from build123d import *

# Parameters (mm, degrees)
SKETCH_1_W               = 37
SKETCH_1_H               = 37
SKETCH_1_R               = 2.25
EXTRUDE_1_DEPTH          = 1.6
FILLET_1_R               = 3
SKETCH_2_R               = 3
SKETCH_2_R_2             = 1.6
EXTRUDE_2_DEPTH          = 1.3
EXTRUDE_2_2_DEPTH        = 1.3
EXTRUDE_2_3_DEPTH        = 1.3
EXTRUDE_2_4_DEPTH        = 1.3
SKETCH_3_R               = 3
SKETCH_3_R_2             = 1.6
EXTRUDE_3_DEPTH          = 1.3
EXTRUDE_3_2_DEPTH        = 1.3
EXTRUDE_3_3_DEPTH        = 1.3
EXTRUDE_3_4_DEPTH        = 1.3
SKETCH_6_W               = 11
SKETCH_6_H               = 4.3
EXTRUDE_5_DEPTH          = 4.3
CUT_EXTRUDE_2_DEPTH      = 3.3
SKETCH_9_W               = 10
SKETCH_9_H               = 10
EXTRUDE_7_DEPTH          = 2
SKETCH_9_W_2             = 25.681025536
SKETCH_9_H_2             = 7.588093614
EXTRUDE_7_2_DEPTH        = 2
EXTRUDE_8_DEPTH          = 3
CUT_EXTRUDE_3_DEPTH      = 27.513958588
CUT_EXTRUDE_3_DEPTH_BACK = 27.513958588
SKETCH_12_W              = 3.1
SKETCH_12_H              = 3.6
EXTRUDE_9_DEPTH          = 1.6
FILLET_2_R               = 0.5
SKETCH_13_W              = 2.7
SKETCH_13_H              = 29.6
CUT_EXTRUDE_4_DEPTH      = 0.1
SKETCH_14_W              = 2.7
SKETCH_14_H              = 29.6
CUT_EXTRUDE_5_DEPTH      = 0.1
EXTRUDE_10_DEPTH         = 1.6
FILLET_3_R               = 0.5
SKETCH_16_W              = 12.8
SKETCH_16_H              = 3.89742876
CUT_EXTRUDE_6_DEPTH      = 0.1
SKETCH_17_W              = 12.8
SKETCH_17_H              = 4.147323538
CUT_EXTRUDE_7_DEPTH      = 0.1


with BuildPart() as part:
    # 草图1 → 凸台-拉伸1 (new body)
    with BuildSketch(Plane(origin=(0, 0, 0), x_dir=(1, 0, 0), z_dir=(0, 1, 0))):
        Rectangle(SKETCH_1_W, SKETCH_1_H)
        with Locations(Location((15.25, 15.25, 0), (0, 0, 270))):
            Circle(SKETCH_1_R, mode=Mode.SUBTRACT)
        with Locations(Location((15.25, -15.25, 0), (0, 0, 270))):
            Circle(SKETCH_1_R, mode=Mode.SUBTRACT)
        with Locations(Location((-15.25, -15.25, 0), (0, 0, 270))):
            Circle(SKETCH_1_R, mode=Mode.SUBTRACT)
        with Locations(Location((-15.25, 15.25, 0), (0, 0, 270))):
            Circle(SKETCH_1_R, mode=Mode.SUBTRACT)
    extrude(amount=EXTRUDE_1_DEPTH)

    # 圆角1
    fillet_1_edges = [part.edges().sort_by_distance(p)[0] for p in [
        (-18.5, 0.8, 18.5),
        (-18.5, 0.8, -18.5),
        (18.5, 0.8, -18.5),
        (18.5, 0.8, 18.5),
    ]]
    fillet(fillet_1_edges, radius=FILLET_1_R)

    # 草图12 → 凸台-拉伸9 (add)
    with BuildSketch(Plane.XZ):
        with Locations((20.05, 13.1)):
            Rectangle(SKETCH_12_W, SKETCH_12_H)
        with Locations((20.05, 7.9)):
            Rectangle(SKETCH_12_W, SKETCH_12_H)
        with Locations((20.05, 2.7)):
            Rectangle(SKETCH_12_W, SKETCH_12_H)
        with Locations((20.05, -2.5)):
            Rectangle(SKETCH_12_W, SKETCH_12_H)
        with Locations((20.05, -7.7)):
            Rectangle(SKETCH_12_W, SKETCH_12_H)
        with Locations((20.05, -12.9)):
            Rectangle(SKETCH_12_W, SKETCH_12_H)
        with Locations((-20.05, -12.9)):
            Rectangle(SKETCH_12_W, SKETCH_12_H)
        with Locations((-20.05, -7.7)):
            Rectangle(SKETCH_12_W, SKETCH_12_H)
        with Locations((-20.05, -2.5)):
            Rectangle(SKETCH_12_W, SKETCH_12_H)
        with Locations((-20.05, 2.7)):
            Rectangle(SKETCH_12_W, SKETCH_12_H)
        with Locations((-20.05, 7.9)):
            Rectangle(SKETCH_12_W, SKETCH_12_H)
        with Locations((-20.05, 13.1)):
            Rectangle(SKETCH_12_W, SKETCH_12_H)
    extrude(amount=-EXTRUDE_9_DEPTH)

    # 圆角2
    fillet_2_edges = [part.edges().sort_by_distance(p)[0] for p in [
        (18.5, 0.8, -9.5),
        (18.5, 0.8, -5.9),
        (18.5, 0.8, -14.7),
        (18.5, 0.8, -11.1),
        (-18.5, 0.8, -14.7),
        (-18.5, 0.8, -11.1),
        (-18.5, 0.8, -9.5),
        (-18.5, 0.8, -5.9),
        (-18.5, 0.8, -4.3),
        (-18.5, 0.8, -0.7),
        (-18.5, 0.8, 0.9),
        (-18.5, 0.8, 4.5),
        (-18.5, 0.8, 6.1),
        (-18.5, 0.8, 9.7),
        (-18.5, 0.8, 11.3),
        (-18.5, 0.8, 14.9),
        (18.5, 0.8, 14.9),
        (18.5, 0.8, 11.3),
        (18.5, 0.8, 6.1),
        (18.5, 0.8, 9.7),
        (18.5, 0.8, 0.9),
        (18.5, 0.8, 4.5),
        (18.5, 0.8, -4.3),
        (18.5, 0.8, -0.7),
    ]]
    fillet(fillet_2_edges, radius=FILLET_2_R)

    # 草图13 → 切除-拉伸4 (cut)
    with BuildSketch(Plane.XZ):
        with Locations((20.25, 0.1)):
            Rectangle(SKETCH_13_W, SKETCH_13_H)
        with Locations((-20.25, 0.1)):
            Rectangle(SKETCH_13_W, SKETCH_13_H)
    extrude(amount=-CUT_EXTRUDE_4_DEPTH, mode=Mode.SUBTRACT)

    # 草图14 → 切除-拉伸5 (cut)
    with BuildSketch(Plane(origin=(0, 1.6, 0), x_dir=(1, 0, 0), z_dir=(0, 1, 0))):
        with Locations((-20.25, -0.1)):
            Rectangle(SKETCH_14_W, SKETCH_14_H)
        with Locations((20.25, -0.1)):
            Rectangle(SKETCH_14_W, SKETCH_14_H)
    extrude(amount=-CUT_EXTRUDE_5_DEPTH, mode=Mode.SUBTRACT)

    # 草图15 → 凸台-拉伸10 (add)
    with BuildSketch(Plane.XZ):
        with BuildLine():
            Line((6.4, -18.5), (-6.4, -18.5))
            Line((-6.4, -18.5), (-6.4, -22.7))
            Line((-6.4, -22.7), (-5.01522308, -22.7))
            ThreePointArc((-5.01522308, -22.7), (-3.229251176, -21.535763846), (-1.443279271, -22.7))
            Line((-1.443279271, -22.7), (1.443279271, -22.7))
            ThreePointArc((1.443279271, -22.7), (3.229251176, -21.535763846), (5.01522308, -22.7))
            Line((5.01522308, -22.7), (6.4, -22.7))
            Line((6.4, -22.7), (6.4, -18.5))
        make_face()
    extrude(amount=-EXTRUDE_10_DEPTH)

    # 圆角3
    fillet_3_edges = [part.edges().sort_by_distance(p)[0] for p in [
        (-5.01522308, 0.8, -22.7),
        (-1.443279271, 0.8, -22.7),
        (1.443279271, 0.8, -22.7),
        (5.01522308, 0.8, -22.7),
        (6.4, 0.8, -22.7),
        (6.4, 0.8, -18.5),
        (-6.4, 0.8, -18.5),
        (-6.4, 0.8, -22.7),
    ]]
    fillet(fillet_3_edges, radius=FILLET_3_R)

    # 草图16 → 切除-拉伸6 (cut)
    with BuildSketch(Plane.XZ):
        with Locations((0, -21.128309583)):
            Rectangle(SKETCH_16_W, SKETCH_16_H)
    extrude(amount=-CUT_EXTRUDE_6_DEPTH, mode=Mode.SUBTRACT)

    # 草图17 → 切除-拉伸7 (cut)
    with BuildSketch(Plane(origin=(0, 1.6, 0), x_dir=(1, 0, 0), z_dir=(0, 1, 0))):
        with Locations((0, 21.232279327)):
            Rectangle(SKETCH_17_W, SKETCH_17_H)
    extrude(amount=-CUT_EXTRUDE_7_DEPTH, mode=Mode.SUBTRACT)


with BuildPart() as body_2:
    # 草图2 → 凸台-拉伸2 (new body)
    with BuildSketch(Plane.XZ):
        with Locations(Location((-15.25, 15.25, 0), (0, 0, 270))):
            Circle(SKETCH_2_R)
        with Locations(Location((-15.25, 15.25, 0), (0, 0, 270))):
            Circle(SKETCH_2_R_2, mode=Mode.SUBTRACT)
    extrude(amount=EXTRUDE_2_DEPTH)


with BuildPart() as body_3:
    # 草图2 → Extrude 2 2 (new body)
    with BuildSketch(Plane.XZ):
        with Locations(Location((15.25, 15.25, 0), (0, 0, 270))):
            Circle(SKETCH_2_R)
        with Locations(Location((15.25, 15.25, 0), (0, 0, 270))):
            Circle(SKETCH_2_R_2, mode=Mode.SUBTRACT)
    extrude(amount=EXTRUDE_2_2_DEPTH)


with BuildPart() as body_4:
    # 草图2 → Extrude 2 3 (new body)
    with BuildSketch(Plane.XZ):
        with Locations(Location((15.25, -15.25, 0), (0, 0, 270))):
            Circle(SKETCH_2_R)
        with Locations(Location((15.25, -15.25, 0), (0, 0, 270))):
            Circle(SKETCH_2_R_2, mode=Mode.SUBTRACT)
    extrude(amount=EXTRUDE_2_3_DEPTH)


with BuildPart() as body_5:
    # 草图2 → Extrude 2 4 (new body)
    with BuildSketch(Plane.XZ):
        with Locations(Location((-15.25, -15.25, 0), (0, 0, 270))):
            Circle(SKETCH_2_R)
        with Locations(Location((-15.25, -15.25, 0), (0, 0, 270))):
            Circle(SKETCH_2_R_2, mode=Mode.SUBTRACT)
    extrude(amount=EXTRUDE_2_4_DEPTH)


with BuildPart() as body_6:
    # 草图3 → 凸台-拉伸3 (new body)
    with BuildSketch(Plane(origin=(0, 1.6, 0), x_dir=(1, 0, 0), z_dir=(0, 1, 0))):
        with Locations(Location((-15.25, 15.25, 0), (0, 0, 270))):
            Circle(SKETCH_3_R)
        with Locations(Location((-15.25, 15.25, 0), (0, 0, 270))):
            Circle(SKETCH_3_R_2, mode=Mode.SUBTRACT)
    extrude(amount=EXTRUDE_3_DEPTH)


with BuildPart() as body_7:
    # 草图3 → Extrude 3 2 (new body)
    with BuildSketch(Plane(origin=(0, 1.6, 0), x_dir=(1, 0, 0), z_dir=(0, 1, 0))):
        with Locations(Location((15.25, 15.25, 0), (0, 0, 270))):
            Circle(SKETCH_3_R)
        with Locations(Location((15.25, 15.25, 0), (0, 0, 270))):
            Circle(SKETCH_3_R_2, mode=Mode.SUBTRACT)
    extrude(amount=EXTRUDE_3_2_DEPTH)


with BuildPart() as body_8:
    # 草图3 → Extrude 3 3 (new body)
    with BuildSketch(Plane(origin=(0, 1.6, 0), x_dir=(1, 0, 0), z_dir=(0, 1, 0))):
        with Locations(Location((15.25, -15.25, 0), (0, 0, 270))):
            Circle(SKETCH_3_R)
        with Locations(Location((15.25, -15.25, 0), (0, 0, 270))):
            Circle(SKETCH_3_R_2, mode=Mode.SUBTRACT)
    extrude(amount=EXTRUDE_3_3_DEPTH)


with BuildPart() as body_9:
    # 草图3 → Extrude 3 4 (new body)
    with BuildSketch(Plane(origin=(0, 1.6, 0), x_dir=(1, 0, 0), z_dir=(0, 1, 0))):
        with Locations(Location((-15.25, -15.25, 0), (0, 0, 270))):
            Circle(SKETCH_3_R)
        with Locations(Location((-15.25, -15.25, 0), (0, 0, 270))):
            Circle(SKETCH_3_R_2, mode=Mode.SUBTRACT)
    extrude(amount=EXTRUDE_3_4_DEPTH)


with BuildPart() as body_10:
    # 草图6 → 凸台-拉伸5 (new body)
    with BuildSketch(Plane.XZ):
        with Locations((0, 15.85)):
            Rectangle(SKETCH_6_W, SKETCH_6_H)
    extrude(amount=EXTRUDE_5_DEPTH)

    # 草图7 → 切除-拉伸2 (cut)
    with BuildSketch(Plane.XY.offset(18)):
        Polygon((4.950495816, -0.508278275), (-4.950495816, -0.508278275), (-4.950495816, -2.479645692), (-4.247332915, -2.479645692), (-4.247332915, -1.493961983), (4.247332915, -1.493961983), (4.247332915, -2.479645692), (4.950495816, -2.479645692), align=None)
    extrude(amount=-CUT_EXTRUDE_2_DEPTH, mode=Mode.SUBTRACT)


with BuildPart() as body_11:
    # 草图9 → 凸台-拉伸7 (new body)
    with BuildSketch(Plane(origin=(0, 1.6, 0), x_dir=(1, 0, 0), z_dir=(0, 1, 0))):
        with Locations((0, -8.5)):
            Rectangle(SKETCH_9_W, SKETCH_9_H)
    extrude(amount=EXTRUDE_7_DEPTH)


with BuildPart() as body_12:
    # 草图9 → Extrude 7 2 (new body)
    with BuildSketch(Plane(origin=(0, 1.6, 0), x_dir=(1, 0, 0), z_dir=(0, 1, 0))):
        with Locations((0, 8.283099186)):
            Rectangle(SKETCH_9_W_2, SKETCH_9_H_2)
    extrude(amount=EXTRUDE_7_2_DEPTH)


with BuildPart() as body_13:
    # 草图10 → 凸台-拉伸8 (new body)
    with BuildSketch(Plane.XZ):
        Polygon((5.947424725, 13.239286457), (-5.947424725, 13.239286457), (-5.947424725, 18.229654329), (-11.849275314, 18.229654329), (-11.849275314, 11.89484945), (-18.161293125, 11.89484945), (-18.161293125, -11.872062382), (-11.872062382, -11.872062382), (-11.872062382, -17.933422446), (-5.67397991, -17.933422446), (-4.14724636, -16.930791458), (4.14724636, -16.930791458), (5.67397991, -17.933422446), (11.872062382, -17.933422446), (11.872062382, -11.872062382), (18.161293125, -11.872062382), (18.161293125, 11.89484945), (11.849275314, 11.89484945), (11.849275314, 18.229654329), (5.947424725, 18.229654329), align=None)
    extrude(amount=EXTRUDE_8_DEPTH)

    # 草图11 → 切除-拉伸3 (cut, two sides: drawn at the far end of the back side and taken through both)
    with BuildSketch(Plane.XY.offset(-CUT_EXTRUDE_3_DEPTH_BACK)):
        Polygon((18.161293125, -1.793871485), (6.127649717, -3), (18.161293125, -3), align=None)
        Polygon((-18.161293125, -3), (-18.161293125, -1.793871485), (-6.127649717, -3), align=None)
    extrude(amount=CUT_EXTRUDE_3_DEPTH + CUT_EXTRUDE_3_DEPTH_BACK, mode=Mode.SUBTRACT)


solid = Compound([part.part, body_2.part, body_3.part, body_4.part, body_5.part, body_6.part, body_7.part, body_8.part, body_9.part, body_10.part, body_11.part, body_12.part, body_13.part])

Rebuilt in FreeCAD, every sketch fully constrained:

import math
import FreeCAD as App
import Part
import Sketcher

V = App.Vector
Q = App.Units.Quantity


def edges_at(feature, points):
    """Names of the edges that pass closest to the given points."""
    edges = feature.Shape.Edges
    near = lambda p: min(range(len(edges)), key=lambda i: edges[i].distToShape(Part.Vertex(*p))[0])
    return sorted({f"Edge{near(p) + 1}" for p in points})


def add_polygon(sketch, points):
    """Adds a closed chain of lines whose ends are joined by coincident constraints."""
    first, n = sketch.GeometryCount, len(points)
    for a, b in zip(points, points[1:] + points[:1]):
        sketch.addGeometry(Part.LineSegment(App.Vector(*a, 0), App.Vector(*b, 0)), False)
    for i in range(n):
        sketch.addConstraint(Sketcher.Constraint("Coincident", first + i, 2, first + (i + 1) % n, 1))

doc = App.newDocument("Part")
body = doc.addObject("PartDesign::Body", "Body")

# Sketch on XZ plane
sketch1 = doc.addObject("Sketcher::SketchObject", "Sketch")
body.addObject(sketch1)
sketch1.AttachmentSupport = (doc.XZ_Plane, [""])
sketch1.MapMode = "FlatFace"
add_polygon(sketch1, [(-18.5, -18.5), (-18.5, 18.5), (18.5, 18.5), (18.5, -18.5)])  # lines 0-3
sketch1.addGeometry(Part.Circle(V(-15.25, 15.25, 0), V(0, 0, 1), 2.25), False)  # 4
sketch1.addGeometry(Part.Circle(V(15.25, 15.25, 0), V(0, 0, 1), 2.25), False)  # 5
sketch1.addGeometry(Part.Circle(V(-15.25, -15.25, 0), V(0, 0, 1), 2.25), False)  # 6
sketch1.addGeometry(Part.Circle(V(15.25, -15.25, 0), V(0, 0, 1), 2.25), False)  # 7
sketch1.addConstraint(Sketcher.Constraint("Vertical", 0))
sketch1.addConstraint(Sketcher.Constraint("Horizontal", 1))
sketch1.addConstraint(Sketcher.Constraint("Vertical", 2))
sketch1.addConstraint(Sketcher.Constraint("Horizontal", 3))
sketch1.addConstraint(Sketcher.Constraint("Equal", 4, 5))
sketch1.addConstraint(Sketcher.Constraint("Equal", 5, 6))
sketch1.addConstraint(Sketcher.Constraint("Equal", 6, 7))
sketch1.addConstraint(Sketcher.Constraint("Symmetric", 5, 3, 6, 3, -1, 1))
sketch1.addConstraint(Sketcher.Constraint("Symmetric", 4, 3, 7, 3, -1, 1))
sketch1.addConstraint(Sketcher.Constraint("Symmetric", 0, 2, 2, 2, -1, 1))
sketch1.addConstraint(Sketcher.Constraint("Symmetric", 4, 3, 5, 3, -2))
sketch1.addConstraint(Sketcher.Constraint("Equal", 3, 0))
sketch1.addConstraint(Sketcher.Constraint("Diameter", 4, Q("4.5 mm")))
sketch1.addConstraint(Sketcher.Constraint("DistanceX", 1, 1, 1, 2, Q("37 mm")))
sketch1.addConstraint(Sketcher.Constraint("DistanceX", 4, 3, 5, 3, Q("30.5 mm")))
sketch1.addConstraint(Sketcher.Constraint("DistanceY", 6, 3, 4, 3, Q("30.5 mm")))
pad1 = doc.addObject("PartDesign::Pad", "Pad")
body.addObject(pad1)
pad1.Profile = sketch1
pad1.Length = 1.6
pad1.Reversed = True
doc.recompute()

fillet = doc.addObject("PartDesign::Fillet", "Fillet")
body.addObject(fillet)
fillet.Base = (pad1, edges_at(pad1, [
    (-18.5, 0.8, 18.5),
    (-18.5, 0.8, -18.5),
    (18.5, 0.8, -18.5),
    (18.5, 0.8, 18.5),
]))
fillet.Radius = 3

# Sketch on XZ plane
sketch2 = doc.addObject("Sketcher::SketchObject", "Sketch001")
body.addObject(sketch2)
sketch2.AttachmentSupport = (doc.XZ_Plane, [""])
sketch2.MapMode = "FlatFace"
add_polygon(sketch2, [(18.5, 14.9), (18.5, 11.3), (21.6, 11.3), (21.6, 14.9)])  # lines 0-3
add_polygon(sketch2, [(18.5, 9.7), (18.5, 6.1), (21.6, 6.1), (21.6, 9.7)])  # lines 4-7
add_polygon(sketch2, [(18.5, 4.5), (18.5, 0.9), (21.6, 0.9), (21.6, 4.5)])  # lines 8-11
add_polygon(sketch2, [(18.5, -0.7), (18.5, -4.3), (21.6, -4.3), (21.6, -0.7)])  # lines 12-15
add_polygon(sketch2, [(18.5, -5.9), (18.5, -9.5), (21.6, -9.5), (21.6, -5.9)])  # lines 16-19
add_polygon(sketch2, [(18.5, -11.1), (18.5, -14.7), (21.6, -14.7), (21.6, -11.1)])  # lines 20-23
add_polygon(sketch2, [(-21.6, -11.1), (-21.6, -14.7), (-18.5, -14.7), (-18.5, -11.1)])  # lines 24-27
add_polygon(sketch2, [(-21.6, -5.9), (-21.6, -9.5), (-18.5, -9.5), (-18.5, -5.9)])  # lines 28-31
add_polygon(sketch2, [(-21.6, -0.7), (-21.6, -4.3), (-18.5, -4.3), (-18.5, -0.7)])  # lines 32-35
add_polygon(sketch2, [(-21.6, 4.5), (-21.6, 0.9), (-18.5, 0.9), (-18.5, 4.5)])  # lines 36-39
add_polygon(sketch2, [(-21.6, 9.7), (-21.6, 6.1), (-18.5, 6.1), (-18.5, 9.7)])  # lines 40-43
add_polygon(sketch2, [(-21.6, 14.9), (-21.6, 11.3), (-18.5, 11.3), (-18.5, 14.9)])  # lines 44-47
sketch2.addConstraint(Sketcher.Constraint("Vertical", 0))
sketch2.addConstraint(Sketcher.Constraint("Horizontal", 1))
sketch2.addConstraint(Sketcher.Constraint("Vertical", 2))
sketch2.addConstraint(Sketcher.Constraint("Horizontal", 3))
sketch2.addConstraint(Sketcher.Constraint("Vertical", 4))
sketch2.addConstraint(Sketcher.Constraint("Horizontal", 5))
sketch2.addConstraint(Sketcher.Constraint("Vertical", 6))
sketch2.addConstraint(Sketcher.Constraint("Horizontal", 7))
sketch2.addConstraint(Sketcher.Constraint("Vertical", 8))
sketch2.addConstraint(Sketcher.Constraint("Horizontal", 9))
sketch2.addConstraint(Sketcher.Constraint("Vertical", 10))
sketch2.addConstraint(Sketcher.Constraint("Horizontal", 11))
sketch2.addConstraint(Sketcher.Constraint("Vertical", 12))
sketch2.addConstraint(Sketcher.Constraint("Horizontal", 13))
sketch2.addConstraint(Sketcher.Constraint("Vertical", 14))
sketch2.addConstraint(Sketcher.Constraint("Horizontal", 15))
sketch2.addConstraint(Sketcher.Constraint("Vertical", 16))
sketch2.addConstraint(Sketcher.Constraint("Horizontal", 17))
sketch2.addConstraint(Sketcher.Constraint("Vertical", 18))
sketch2.addConstraint(Sketcher.Constraint("Horizontal", 19))
sketch2.addConstraint(Sketcher.Constraint("Vertical", 20))
sketch2.addConstraint(Sketcher.Constraint("Horizontal", 21))
sketch2.addConstraint(Sketcher.Constraint("Vertical", 22))
sketch2.addConstraint(Sketcher.Constraint("Horizontal", 23))
sketch2.addConstraint(Sketcher.Constraint("Vertical", 24))
sketch2.addConstraint(Sketcher.Constraint("Horizontal", 25))
sketch2.addConstraint(Sketcher.Constraint("Vertical", 26))
sketch2.addConstraint(Sketcher.Constraint("Horizontal", 27))
sketch2.addConstraint(Sketcher.Constraint("Vertical", 28))
sketch2.addConstraint(Sketcher.Constraint("Horizontal", 29))
sketch2.addConstraint(Sketcher.Constraint("Vertical", 30))
sketch2.addConstraint(Sketcher.Constraint("Horizontal", 31))
sketch2.addConstraint(Sketcher.Constraint("Vertical", 32))
sketch2.addConstraint(Sketcher.Constraint("Horizontal", 33))
sketch2.addConstraint(Sketcher.Constraint("Vertical", 34))
sketch2.addConstraint(Sketcher.Constraint("Horizontal", 35))
sketch2.addConstraint(Sketcher.Constraint("Vertical", 36))
sketch2.addConstraint(Sketcher.Constraint("Horizontal", 37))
sketch2.addConstraint(Sketcher.Constraint("Vertical", 38))
sketch2.addConstraint(Sketcher.Constraint("Horizontal", 39))
sketch2.addConstraint(Sketcher.Constraint("Vertical", 40))
sketch2.addConstraint(Sketcher.Constraint("Horizontal", 41))
sketch2.addConstraint(Sketcher.Constraint("Vertical", 42))
sketch2.addConstraint(Sketcher.Constraint("Horizontal", 43))
sketch2.addConstraint(Sketcher.Constraint("Vertical", 44))
sketch2.addConstraint(Sketcher.Constraint("Horizontal", 45))
sketch2.addConstraint(Sketcher.Constraint("Vertical", 46))
sketch2.addConstraint(Sketcher.Constraint("Horizontal", 47))
sketch2.addConstraint(Sketcher.Constraint("Symmetric", 21, 2, 24, 2, -2))
sketch2.addConstraint(Sketcher.Constraint("Symmetric", 23, 2, 26, 2, -2))
sketch2.addConstraint(Sketcher.Constraint("Symmetric", 17, 2, 28, 2, -2))
sketch2.addConstraint(Sketcher.Constraint("Symmetric", 19, 2, 30, 2, -2))
sketch2.addConstraint(Sketcher.Constraint("Symmetric", 13, 2, 32, 2, -2))
sketch2.addConstraint(Sketcher.Constraint("Symmetric", 15, 2, 34, 2, -2))
sketch2.addConstraint(Sketcher.Constraint("Symmetric", 9, 2, 36, 2, -2))
sketch2.addConstraint(Sketcher.Constraint("Symmetric", 11, 2, 38, 2, -2))
sketch2.addConstraint(Sketcher.Constraint("Symmetric", 5, 2, 40, 2, -2))
sketch2.addConstraint(Sketcher.Constraint("Symmetric", 7, 2, 42, 2, -2))
sketch2.addConstraint(Sketcher.Constraint("Symmetric", 1, 2, 44, 2, -2))
sketch2.addConstraint(Sketcher.Constraint("Symmetric", 3, 2, 46, 2, -2))
sketch2.addConstraint(Sketcher.Constraint("Vertical", 3, 2, 4, 2))
sketch2.addConstraint(Sketcher.Constraint("Vertical", 2, 2, 5, 2))
sketch2.addConstraint(Sketcher.Constraint("Vertical", 7, 2, 8, 2))
sketch2.addConstraint(Sketcher.Constraint("Vertical", 6, 2, 9, 2))
sketch2.addConstraint(Sketcher.Constraint("Vertical", 11, 2, 12, 2))
sketch2.addConstraint(Sketcher.Constraint("Vertical", 10, 2, 13, 2))
sketch2.addConstraint(Sketcher.Constraint("Vertical", 15, 2, 16, 2))
sketch2.addConstraint(Sketcher.Constraint("Vertical", 14, 2, 17, 2))
sketch2.addConstraint(Sketcher.Constraint("Vertical", 19, 2, 20, 2))
sketch2.addConstraint(Sketcher.Constraint("Vertical", 18, 2, 21, 2))
sketch2.addConstraint(Sketcher.Constraint("Equal", 2, 4))
sketch2.addConstraint(Sketcher.Constraint("Equal", 6, 8))
sketch2.addConstraint(Sketcher.Constraint("Equal", 10, 12))
sketch2.addConstraint(Sketcher.Constraint("Equal", 14, 16))
sketch2.addConstraint(Sketcher.Constraint("Equal", 18, 20))
sketch2.addConstraint(Sketcher.Constraint("DistanceX", 1, 1, 1, 2, Q("3.1 mm")))
sketch2.addConstraint(Sketcher.Constraint("DistanceY", 0, 2, 0, 1, Q("3.6 mm")))
sketch2.addConstraint(Sketcher.Constraint("DistanceX", 25, 2, 20, 2, Q("37 mm")))
sketch2.addConstraint(Sketcher.Constraint("DistanceY", -1, 1, 0, 2, Q("11.3 mm")))
sketch2.addConstraint(Sketcher.Constraint("DistanceY", -1, 1, 4, 2, Q("6.1 mm")))
sketch2.addConstraint(Sketcher.Constraint("DistanceY", -1, 1, 8, 2, Q("0.9 mm")))
sketch2.addConstraint(Sketcher.Constraint("DistanceY", 12, 2, -1, 1, Q("4.3 mm")))
sketch2.addConstraint(Sketcher.Constraint("DistanceY", 16, 2, -1, 1, Q("9.5 mm")))
sketch2.addConstraint(Sketcher.Constraint("DistanceY", 20, 2, -1, 1, Q("14.7 mm")))
pad2 = doc.addObject("PartDesign::Pad", "Pad001")
body.addObject(pad2)
pad2.Profile = sketch2
pad2.Length = 1.6
pad2.Reversed = True
doc.recompute()

fillet2 = doc.addObject("PartDesign::Fillet", "Fillet001")
body.addObject(fillet2)
fillet2.Base = (pad2, edges_at(pad2, [
    (18.5, 0.8, -9.5),
    (18.5, 0.8, -5.9),
    (18.5, 0.8, -14.7),
    (18.5, 0.8, -11.1),
    (-18.5, 0.8, -14.7),
    (-18.5, 0.8, -11.1),
    (-18.5, 0.8, -9.5),
    (-18.5, 0.8, -5.9),
    (-18.5, 0.8, -4.3),
    (-18.5, 0.8, -0.7),
    (-18.5, 0.8, 0.9),
    (-18.5, 0.8, 4.5),
    (-18.5, 0.8, 6.1),
    (-18.5, 0.8, 9.7),
    (-18.5, 0.8, 11.3),
    (-18.5, 0.8, 14.9),
    (18.5, 0.8, 14.9),
    (18.5, 0.8, 11.3),
    (18.5, 0.8, 6.1),
    (18.5, 0.8, 9.7),
    (18.5, 0.8, 0.9),
    (18.5, 0.8, 4.5),
    (18.5, 0.8, -4.3),
    (18.5, 0.8, -0.7),
]))
fillet2.Radius = 0.5

# Sketch on XZ plane
sketch3 = doc.addObject("Sketcher::SketchObject", "Sketch002")
body.addObject(sketch3)
sketch3.AttachmentSupport = (doc.XZ_Plane, [""])
sketch3.MapMode = "FlatFace"
add_polygon(sketch3, [(18.9, 14.9), (18.9, -14.7), (21.6, -14.7), (21.6, 14.9)])  # lines 0-3
add_polygon(sketch3, [(-21.6, 14.9), (-21.6, -14.7), (-18.9, -14.7), (-18.9, 14.9)])  # lines 4-7
sketch3.addConstraint(Sketcher.Constraint("Vertical", 0))
sketch3.addConstraint(Sketcher.Constraint("Horizontal", 1))
sketch3.addConstraint(Sketcher.Constraint("Vertical", 2))
sketch3.addConstraint(Sketcher.Constraint("Horizontal", 3))
sketch3.addConstraint(Sketcher.Constraint("Vertical", 4))
sketch3.addConstraint(Sketcher.Constraint("Horizontal", 5))
sketch3.addConstraint(Sketcher.Constraint("Vertical", 6))
sketch3.addConstraint(Sketcher.Constraint("Horizontal", 7))
sketch3.addConstraint(Sketcher.Constraint("Symmetric", 1, 2, 4, 2, -2))
sketch3.addConstraint(Sketcher.Constraint("Symmetric", 3, 2, 6, 2, -2))
sketch3.addConstraint(Sketcher.Constraint("DistanceX", 1, 1, 1, 2, Q("2.7 mm")))
sketch3.addConstraint(Sketcher.Constraint("DistanceY", 0, 2, 0, 1, Q("29.6 mm")))
sketch3.addConstraint(Sketcher.Constraint("DistanceX", -1, 1, 0, 2, Q("18.9 mm")))
sketch3.addConstraint(Sketcher.Constraint("DistanceY", 0, 2, -1, 1, Q("14.7 mm")))
pocket1 = doc.addObject("PartDesign::Pocket", "Pocket")
body.addObject(pocket1)
pocket1.Profile = sketch3
pocket1.Length = 0.1

# Sketch on XZ plane
sketch4 = doc.addObject("Sketcher::SketchObject", "Sketch003")
body.addObject(sketch4)
sketch4.AttachmentSupport = (doc.XZ_Plane, [""])
sketch4.MapMode = "FlatFace"
sketch4.AttachmentOffset = App.Placement(V(0, 0, -1.6), App.Rotation())
add_polygon(sketch4, [(-21.6, -14.7), (-21.6, 14.9), (-18.9, 14.9), (-18.9, -14.7)])  # lines 0-3
add_polygon(sketch4, [(18.9, -14.7), (18.9, 14.9), (21.6, 14.9), (21.6, -14.7)])  # lines 4-7
sketch4.addConstraint(Sketcher.Constraint("Vertical", 0))
sketch4.addConstraint(Sketcher.Constraint("Horizontal", 1))
sketch4.addConstraint(Sketcher.Constraint("Vertical", 2))
sketch4.addConstraint(Sketcher.Constraint("Horizontal", 3))
sketch4.addConstraint(Sketcher.Constraint("Vertical", 4))
sketch4.addConstraint(Sketcher.Constraint("Horizontal", 5))
sketch4.addConstraint(Sketcher.Constraint("Vertical", 6))
sketch4.addConstraint(Sketcher.Constraint("Horizontal", 7))
sketch4.addConstraint(Sketcher.Constraint("Symmetric", 1, 2, 4, 2, -2))
sketch4.addConstraint(Sketcher.Constraint("Symmetric", 3, 2, 6, 2, -2))
sketch4.addConstraint(Sketcher.Constraint("DistanceX", 1, 1, 1, 2, Q("2.7 mm")))
sketch4.addConstraint(Sketcher.Constraint("DistanceY", 0, 1, 0, 2, Q("29.6 mm")))
sketch4.addConstraint(Sketcher.Constraint("DistanceX", 0, 2, -1, 1, Q("21.6 mm")))
sketch4.addConstraint(Sketcher.Constraint("DistanceY", -1, 1, 0, 2, Q("14.9 mm")))
pocket2 = doc.addObject("PartDesign::Pocket", "Pocket001")
body.addObject(pocket2)
pocket2.Profile = sketch4
pocket2.Length = 0.1
pocket2.Reversed = True

# Sketch on XZ plane
sketch5 = doc.addObject("Sketcher::SketchObject", "Sketch004")
body.addObject(sketch5)
sketch5.AttachmentSupport = (doc.XZ_Plane, [""])
sketch5.MapMode = "FlatFace"
sketch5.addGeometry(Part.LineSegment(V(6.4, -18.5, 0), V(-6.4, -18.5, 0)), False)
sketch5.addGeometry(Part.LineSegment(V(-6.4, -18.5, 0), V(-6.4, -22.7, 0)), False)
sketch5.addGeometry(Part.LineSegment(V(-6.4, -22.7, 0), V(-5.015223, -22.7, 0)), False)
sketch5.addGeometry(Part.ArcOfCircle(Part.Circle(V(-3.229251, -23.487748, 0), V(0, 0, 1), 1.951984), math.radians(23.801093), math.radians(156.198907)), False)
sketch5.addGeometry(Part.LineSegment(V(-1.443279, -22.7, 0), V(1.443279, -22.7, 0)), False)
sketch5.addGeometry(Part.ArcOfCircle(Part.Circle(V(3.229251, -23.487748, 0), V(0, 0, 1), 1.951984), math.radians(23.801093), math.radians(156.198907)), False)
sketch5.addGeometry(Part.LineSegment(V(5.015223, -22.7, 0), V(6.4, -22.7, 0)), False)
sketch5.addGeometry(Part.LineSegment(V(6.4, -22.7, 0), V(6.4, -18.5, 0)), False)
sketch5.addConstraint(Sketcher.Constraint("Coincident", 0, 2, 1, 1))
sketch5.addConstraint(Sketcher.Constraint("Coincident", 1, 2, 2, 1))
sketch5.addConstraint(Sketcher.Constraint("Coincident", 2, 2, 3, 2))
sketch5.addConstraint(Sketcher.Constraint("Coincident", 3, 1, 4, 1))
sketch5.addConstraint(Sketcher.Constraint("Coincident", 4, 2, 5, 2))
sketch5.addConstraint(Sketcher.Constraint("Coincident", 5, 1, 6, 1))
sketch5.addConstraint(Sketcher.Constraint("Coincident", 6, 2, 7, 1))
sketch5.addConstraint(Sketcher.Constraint("Coincident", 7, 2, 0, 1))
sketch5.addConstraint(Sketcher.Constraint("Horizontal", 0))
sketch5.addConstraint(Sketcher.Constraint("Vertical", 1))
sketch5.addConstraint(Sketcher.Constraint("Horizontal", 2))
sketch5.addConstraint(Sketcher.Constraint("Horizontal", 4))
sketch5.addConstraint(Sketcher.Constraint("Horizontal", 6))
sketch5.addConstraint(Sketcher.Constraint("Vertical", 7))
sketch5.addConstraint(Sketcher.Constraint("Equal", 3, 5))
sketch5.addConstraint(Sketcher.Constraint("Symmetric", 3, 3, 5, 3, -2))
sketch5.addConstraint(Sketcher.Constraint("Symmetric", 1, 2, 6, 2, -2))
sketch5.addConstraint(Sketcher.Constraint("Horizontal", 2, 2, 3, 1))
sketch5.addConstraint(Sketcher.Constraint("DistanceX", 0, 2, 0, 1, Q("12.8 mm")))
sketch5.addConstraint(Sketcher.Constraint("DistanceY", 1, 2, 1, 1, Q("4.2 mm")))
sketch5.addConstraint(Sketcher.Constraint("DistanceY", 0, 2, -1, 1, Q("18.5 mm")))
sketch5.addConstraint(Sketcher.Constraint("Radius", 3, Q("1.951984 mm")))
sketch5.addConstraint(Sketcher.Constraint("DistanceX", 4, 1, 4, 2, Q("2.886559 mm")))
sketch5.addConstraint(Sketcher.Constraint("DistanceX", 2, 1, 2, 2, Q("1.384777 mm")))
pad3 = doc.addObject("PartDesign::Pad", "Pad002")
body.addObject(pad3)
pad3.Profile = sketch5
pad3.Length = 1.6
pad3.Reversed = True
doc.recompute()

fillet3 = doc.addObject("PartDesign::Fillet", "Fillet002")
body.addObject(fillet3)
fillet3.Base = (pad3, edges_at(pad3, [
    (-5.015, 0.8, -22.7),
    (-1.443, 0.8, -22.7),
    (1.443, 0.8, -22.7),
    (5.015, 0.8, -22.7),
    (6.4, 0.8, -22.7),
    (6.4, 0.8, -18.5),
    (-6.4, 0.8, -18.5),
    (-6.4, 0.8, -22.7),
]))
fillet3.Radius = 0.5

# Sketch on XZ plane
sketch6 = doc.addObject("Sketcher::SketchObject", "Sketch005")
body.addObject(sketch6)
sketch6.AttachmentSupport = (doc.XZ_Plane, [""])
sketch6.MapMode = "FlatFace"
add_polygon(sketch6, [(-6.4, -19.179595), (-6.4, -23.077024), (6.4, -23.077024), (6.4, -19.179595)])  # lines 0-3
sketch6.addConstraint(Sketcher.Constraint("Vertical", 0))
sketch6.addConstraint(Sketcher.Constraint("Horizontal", 1))
sketch6.addConstraint(Sketcher.Constraint("Vertical", 2))
sketch6.addConstraint(Sketcher.Constraint("Horizontal", 3))
sketch6.addConstraint(Sketcher.Constraint("DistanceX", 1, 1, 1, 2, Q("12.8 mm")))
sketch6.addConstraint(Sketcher.Constraint("DistanceX", 0, 2, -1, 1, Q("6.4 mm")))
sketch6.addConstraint(Sketcher.Constraint("DistanceY", 0, 2, 0, 1, Q("3.897429 mm")))
sketch6.addConstraint(Sketcher.Constraint("DistanceY", 0, 2, -1, 1, Q("23.077024 mm")))
pocket3 = doc.addObject("PartDesign::Pocket", "Pocket002")
body.addObject(pocket3)
pocket3.Profile = sketch6
pocket3.Length = 0.1

# Sketch on XZ plane
sketch7 = doc.addObject("Sketcher::SketchObject", "Sketch006")
body.addObject(sketch7)
sketch7.AttachmentSupport = (doc.XZ_Plane, [""])
sketch7.MapMode = "FlatFace"
sketch7.AttachmentOffset = App.Placement(V(0, 0, -1.6), App.Rotation())
add_polygon(sketch7, [(-6.4, -23.305941), (-6.4, -19.158618), (6.4, -19.158618), (6.4, -23.305941)])  # lines 0-3
sketch7.addConstraint(Sketcher.Constraint("Vertical", 0))
sketch7.addConstraint(Sketcher.Constraint("Horizontal", 1))
sketch7.addConstraint(Sketcher.Constraint("Vertical", 2))
sketch7.addConstraint(Sketcher.Constraint("Horizontal", 3))
sketch7.addConstraint(Sketcher.Constraint("DistanceX", 1, 1, 1, 2, Q("12.8 mm")))
sketch7.addConstraint(Sketcher.Constraint("DistanceX", 0, 2, -1, 1, Q("6.4 mm")))
sketch7.addConstraint(Sketcher.Constraint("DistanceY", 0, 1, 0, 2, Q("4.147324 mm")))
sketch7.addConstraint(Sketcher.Constraint("DistanceY", 2, 2, -1, 1, Q("23.305941 mm")))
pocket4 = doc.addObject("PartDesign::Pocket", "Pocket003")
body.addObject(pocket4)
pocket4.Profile = sketch7
pocket4.Length = 0.1
pocket4.Reversed = True
body2 = doc.addObject("PartDesign::Body", "Body001")

# Sketch on XZ plane
sketch8 = doc.addObject("Sketcher::SketchObject", "Sketch007")
body2.addObject(sketch8)
sketch8.AttachmentSupport = (doc.getObject("XZ_Plane001"), [""])
sketch8.MapMode = "FlatFace"
sketch8.addGeometry(Part.Circle(V(-15.25, 15.25, 0), V(0, 0, 1), 3), False)
sketch8.addGeometry(Part.Circle(V(-15.25, 15.25, 0), V(0, 0, 1), 1.6), False)
sketch8.addConstraint(Sketcher.Constraint("Coincident", 1, 3, 0, 3))
sketch8.addConstraint(Sketcher.Constraint("Diameter", 0, Q("6 mm")))
sketch8.addConstraint(Sketcher.Constraint("Diameter", 1, Q("3.2 mm")))
sketch8.addConstraint(Sketcher.Constraint("DistanceX", 0, 3, -1, 1, Q("15.25 mm")))
sketch8.addConstraint(Sketcher.Constraint("DistanceY", -1, 1, 0, 3, Q("15.25 mm")))
pad4 = doc.addObject("PartDesign::Pad", "Pad003")
body2.addObject(pad4)
pad4.Profile = sketch8
pad4.Length = 1.3
body3 = doc.addObject("PartDesign::Body", "Body002")

# Sketch on XZ plane
sketch9 = doc.addObject("Sketcher::SketchObject", "Sketch008")
body3.addObject(sketch9)
sketch9.AttachmentSupport = (doc.getObject("XZ_Plane002"), [""])
sketch9.MapMode = "FlatFace"
sketch9.addGeometry(Part.Circle(V(15.25, 15.25, 0), V(0, 0, 1), 3), False)
sketch9.addGeometry(Part.Circle(V(15.25, 15.25, 0), V(0, 0, 1), 1.6), False)
sketch9.addConstraint(Sketcher.Constraint("Coincident", 1, 3, 0, 3))
sketch9.addConstraint(Sketcher.Constraint("Diameter", 0, Q("6 mm")))
sketch9.addConstraint(Sketcher.Constraint("Diameter", 1, Q("3.2 mm")))
sketch9.addConstraint(Sketcher.Constraint("DistanceX", -1, 1, 0, 3, Q("15.25 mm")))
sketch9.addConstraint(Sketcher.Constraint("DistanceY", -1, 1, 0, 3, Q("15.25 mm")))
pad5 = doc.addObject("PartDesign::Pad", "Pad004")
body3.addObject(pad5)
pad5.Profile = sketch9
pad5.Length = 1.3
body4 = doc.addObject("PartDesign::Body", "Body003")

# Sketch on XZ plane
sketch10 = doc.addObject("Sketcher::SketchObject", "Sketch009")
body4.addObject(sketch10)
sketch10.AttachmentSupport = (doc.getObject("XZ_Plane003"), [""])
sketch10.MapMode = "FlatFace"
sketch10.addGeometry(Part.Circle(V(15.25, -15.25, 0), V(0, 0, 1), 3), False)
sketch10.addGeometry(Part.Circle(V(15.25, -15.25, 0), V(0, 0, 1), 1.6), False)
sketch10.addConstraint(Sketcher.Constraint("Coincident", 1, 3, 0, 3))
sketch10.addConstraint(Sketcher.Constraint("Diameter", 0, Q("6 mm")))
sketch10.addConstraint(Sketcher.Constraint("Diameter", 1, Q("3.2 mm")))
sketch10.addConstraint(Sketcher.Constraint("DistanceX", -1, 1, 0, 3, Q("15.25 mm")))
sketch10.addConstraint(Sketcher.Constraint("DistanceY", 0, 3, -1, 1, Q("15.25 mm")))
pad6 = doc.addObject("PartDesign::Pad", "Pad005")
body4.addObject(pad6)
pad6.Profile = sketch10
pad6.Length = 1.3
body5 = doc.addObject("PartDesign::Body", "Body004")

# Sketch on XZ plane
sketch11 = doc.addObject("Sketcher::SketchObject", "Sketch010")
body5.addObject(sketch11)
sketch11.AttachmentSupport = (doc.getObject("XZ_Plane004"), [""])
sketch11.MapMode = "FlatFace"
sketch11.addGeometry(Part.Circle(V(-15.25, -15.25, 0), V(0, 0, 1), 3), False)
sketch11.addGeometry(Part.Circle(V(-15.25, -15.25, 0), V(0, 0, 1), 1.6), False)
sketch11.addConstraint(Sketcher.Constraint("Coincident", 1, 3, 0, 3))
sketch11.addConstraint(Sketcher.Constraint("Diameter", 0, Q("6 mm")))
sketch11.addConstraint(Sketcher.Constraint("Diameter", 1, Q("3.2 mm")))
sketch11.addConstraint(Sketcher.Constraint("DistanceX", 0, 3, -1, 1, Q("15.25 mm")))
sketch11.addConstraint(Sketcher.Constraint("DistanceY", 0, 3, -1, 1, Q("15.25 mm")))
pad7 = doc.addObject("PartDesign::Pad", "Pad006")
body5.addObject(pad7)
pad7.Profile = sketch11
pad7.Length = 1.3
body6 = doc.addObject("PartDesign::Body", "Body005")

# Sketch on XZ plane
sketch12 = doc.addObject("Sketcher::SketchObject", "Sketch011")
body6.addObject(sketch12)
sketch12.AttachmentSupport = (doc.getObject("XZ_Plane005"), [""])
sketch12.MapMode = "FlatFace"
sketch12.AttachmentOffset = App.Placement(V(0, 0, -1.6), App.Rotation())
sketch12.addGeometry(Part.Circle(V(-15.25, -15.25, 0), V(0, 0, 1), 3), False)
sketch12.addGeometry(Part.Circle(V(-15.25, -15.25, 0), V(0, 0, 1), 1.6), False)
sketch12.addConstraint(Sketcher.Constraint("Coincident", 1, 3, 0, 3))
sketch12.addConstraint(Sketcher.Constraint("Diameter", 0, Q("6 mm")))
sketch12.addConstraint(Sketcher.Constraint("Diameter", 1, Q("3.2 mm")))
sketch12.addConstraint(Sketcher.Constraint("DistanceX", 0, 3, -1, 1, Q("15.25 mm")))
sketch12.addConstraint(Sketcher.Constraint("DistanceY", 0, 3, -1, 1, Q("15.25 mm")))
pad8 = doc.addObject("PartDesign::Pad", "Pad007")
body6.addObject(pad8)
pad8.Profile = sketch12
pad8.Length = 1.3
pad8.Reversed = True
body7 = doc.addObject("PartDesign::Body", "Body006")

# Sketch on XZ plane
sketch13 = doc.addObject("Sketcher::SketchObject", "Sketch012")
body7.addObject(sketch13)
sketch13.AttachmentSupport = (doc.getObject("XZ_Plane006"), [""])
sketch13.MapMode = "FlatFace"
sketch13.AttachmentOffset = App.Placement(V(0, 0, -1.6), App.Rotation())
sketch13.addGeometry(Part.Circle(V(15.25, -15.25, 0), V(0, 0, 1), 3), False)
sketch13.addGeometry(Part.Circle(V(15.25, -15.25, 0), V(0, 0, 1), 1.6), False)
sketch13.addConstraint(Sketcher.Constraint("Coincident", 1, 3, 0, 3))
sketch13.addConstraint(Sketcher.Constraint("Diameter", 0, Q("6 mm")))
sketch13.addConstraint(Sketcher.Constraint("Diameter", 1, Q("3.2 mm")))
sketch13.addConstraint(Sketcher.Constraint("DistanceX", -1, 1, 0, 3, Q("15.25 mm")))
sketch13.addConstraint(Sketcher.Constraint("DistanceY", 0, 3, -1, 1, Q("15.25 mm")))
pad9 = doc.addObject("PartDesign::Pad", "Pad008")
body7.addObject(pad9)
pad9.Profile = sketch13
pad9.Length = 1.3
pad9.Reversed = True
body8 = doc.addObject("PartDesign::Body", "Body007")

# Sketch on XZ plane
sketch14 = doc.addObject("Sketcher::SketchObject", "Sketch013")
body8.addObject(sketch14)
sketch14.AttachmentSupport = (doc.getObject("XZ_Plane007"), [""])
sketch14.MapMode = "FlatFace"
sketch14.AttachmentOffset = App.Placement(V(0, 0, -1.6), App.Rotation())
sketch14.addGeometry(Part.Circle(V(15.25, 15.25, 0), V(0, 0, 1), 3), False)
sketch14.addGeometry(Part.Circle(V(15.25, 15.25, 0), V(0, 0, 1), 1.6), False)
sketch14.addConstraint(Sketcher.Constraint("Coincident", 1, 3, 0, 3))
sketch14.addConstraint(Sketcher.Constraint("Diameter", 0, Q("6 mm")))
sketch14.addConstraint(Sketcher.Constraint("Diameter", 1, Q("3.2 mm")))
sketch14.addConstraint(Sketcher.Constraint("DistanceX", -1, 1, 0, 3, Q("15.25 mm")))
sketch14.addConstraint(Sketcher.Constraint("DistanceY", -1, 1, 0, 3, Q("15.25 mm")))
pad10 = doc.addObject("PartDesign::Pad", "Pad009")
body8.addObject(pad10)
pad10.Profile = sketch14
pad10.Length = 1.3
pad10.Reversed = True
body9 = doc.addObject("PartDesign::Body", "Body008")

# Sketch on XZ plane
sketch15 = doc.addObject("Sketcher::SketchObject", "Sketch014")
body9.addObject(sketch15)
sketch15.AttachmentSupport = (doc.getObject("XZ_Plane008"), [""])
sketch15.MapMode = "FlatFace"
sketch15.AttachmentOffset = App.Placement(V(0, 0, -1.6), App.Rotation())
sketch15.addGeometry(Part.Circle(V(-15.25, 15.25, 0), V(0, 0, 1), 3), False)
sketch15.addGeometry(Part.Circle(V(-15.25, 15.25, 0), V(0, 0, 1), 1.6), False)
sketch15.addConstraint(Sketcher.Constraint("Coincident", 1, 3, 0, 3))
sketch15.addConstraint(Sketcher.Constraint("Diameter", 0, Q("6 mm")))
sketch15.addConstraint(Sketcher.Constraint("Diameter", 1, Q("3.2 mm")))
sketch15.addConstraint(Sketcher.Constraint("DistanceX", 0, 3, -1, 1, Q("15.25 mm")))
sketch15.addConstraint(Sketcher.Constraint("DistanceY", -1, 1, 0, 3, Q("15.25 mm")))
pad11 = doc.addObject("PartDesign::Pad", "Pad010")
body9.addObject(pad11)
pad11.Profile = sketch15
pad11.Length = 1.3
pad11.Reversed = True
body10 = doc.addObject("PartDesign::Body", "Body009")

# Sketch on XZ plane
sketch16 = doc.addObject("Sketcher::SketchObject", "Sketch015")
body10.addObject(sketch16)
sketch16.AttachmentSupport = (doc.getObject("XZ_Plane009"), [""])
sketch16.MapMode = "FlatFace"
add_polygon(sketch16, [(-5.5, 18), (-5.5, 13.7), (5.5, 13.7), (5.5, 18)])  # lines 0-3
sketch16.addConstraint(Sketcher.Constraint("Vertical", 0))
sketch16.addConstraint(Sketcher.Constraint("Horizontal", 1))
sketch16.addConstraint(Sketcher.Constraint("Vertical", 2))
sketch16.addConstraint(Sketcher.Constraint("Horizontal", 3))
sketch16.addConstraint(Sketcher.Constraint("DistanceX", 1, 1, 1, 2, Q("11 mm")))
sketch16.addConstraint(Sketcher.Constraint("DistanceY", 0, 2, 0, 1, Q("4.3 mm")))
sketch16.addConstraint(Sketcher.Constraint("DistanceY", -1, 1, 2, 2, Q("18 mm")))
sketch16.addConstraint(Sketcher.Constraint("DistanceX", 0, 2, -1, 1, Q("5.5 mm")))
pad12 = doc.addObject("PartDesign::Pad", "Pad011")
body10.addObject(pad12)
pad12.Profile = sketch16
pad12.Length = 4.3

# Sketch on XY plane
sketch17 = doc.addObject("Sketcher::SketchObject", "Sketch016")
body10.addObject(sketch17)
sketch17.AttachmentSupport = (doc.getObject("XY_Plane009"), [""])
sketch17.MapMode = "FlatFace"
sketch17.AttachmentOffset = App.Placement(V(0, 0, 18), App.Rotation())
add_polygon(sketch17, [(4.950496, -0.508278), (-4.950496, -0.508278), (-4.950496, -2.479646), (-4.247333, -2.479646), (-4.247333, -1.493962), (4.247333, -1.493962), (4.247333, -2.479646), (4.950496, -2.479646)])  # lines 0-7
sketch17.addConstraint(Sketcher.Constraint("Horizontal", 0))
sketch17.addConstraint(Sketcher.Constraint("Vertical", 1))
sketch17.addConstraint(Sketcher.Constraint("Horizontal", 2))
sketch17.addConstraint(Sketcher.Constraint("Vertical", 3))
sketch17.addConstraint(Sketcher.Constraint("Horizontal", 4))
sketch17.addConstraint(Sketcher.Constraint("Vertical", 5))
sketch17.addConstraint(Sketcher.Constraint("Horizontal", 6))
sketch17.addConstraint(Sketcher.Constraint("Vertical", 7))
sketch17.addConstraint(Sketcher.Constraint("Symmetric", 2, 2, 5, 2, -2))
sketch17.addConstraint(Sketcher.Constraint("Equal", 2, 6))
sketch17.addConstraint(Sketcher.Constraint("DistanceX", 0, 2, 0, 1, Q("9.900992 mm")))
sketch17.addConstraint(Sketcher.Constraint("DistanceX", 2, 1, 2, 2, Q("0.703163 mm")))
sketch17.addConstraint(Sketcher.Constraint("DistanceY", 1, 2, 1, 1, Q("1.971367 mm")))
sketch17.addConstraint(Sketcher.Constraint("DistanceY", 3, 1, 3, 2, Q("0.985684 mm")))
sketch17.addConstraint(Sketcher.Constraint("DistanceY", 0, 2, -1, 1, Q("0.508278 mm")))
pocket5 = doc.addObject("PartDesign::Pocket", "Pocket004")
body10.addObject(pocket5)
pocket5.Profile = sketch17
pocket5.Length = 3.3
body11 = doc.addObject("PartDesign::Body", "Body010")

# Sketch on XZ plane
sketch18 = doc.addObject("Sketcher::SketchObject", "Sketch017")
body11.addObject(sketch18)
sketch18.AttachmentSupport = (doc.getObject("XZ_Plane010"), [""])
sketch18.MapMode = "FlatFace"
sketch18.AttachmentOffset = App.Placement(V(0, 0, -1.6), App.Rotation())
add_polygon(sketch18, [(-5, 3.5), (-5, 13.5), (5, 13.5), (5, 3.5)])  # lines 0-3
sketch18.addConstraint(Sketcher.Constraint("Vertical", 0))
sketch18.addConstraint(Sketcher.Constraint("Horizontal", 1))
sketch18.addConstraint(Sketcher.Constraint("Vertical", 2))
sketch18.addConstraint(Sketcher.Constraint("Horizontal", 3))
sketch18.addConstraint(Sketcher.Constraint("Equal", 3, 0))
sketch18.addConstraint(Sketcher.Constraint("DistanceX", 1, 1, 1, 2, Q("10 mm")))
sketch18.addConstraint(Sketcher.Constraint("DistanceX", 0, 2, -1, 1, Q("5 mm")))
sketch18.addConstraint(Sketcher.Constraint("DistanceY", -1, 1, 0, 2, Q("13.5 mm")))
pad13 = doc.addObject("PartDesign::Pad", "Pad012")
body11.addObject(pad13)
pad13.Profile = sketch18
pad13.Length = 2
pad13.Reversed = True
body12 = doc.addObject("PartDesign::Body", "Body011")

# Sketch on XZ plane
sketch19 = doc.addObject("Sketcher::SketchObject", "Sketch018")
body12.addObject(sketch19)
sketch19.AttachmentSupport = (doc.getObject("XZ_Plane011"), [""])
sketch19.MapMode = "FlatFace"
sketch19.AttachmentOffset = App.Placement(V(0, 0, -1.6), App.Rotation())
add_polygon(sketch19, [(-12.840513, -12.077146), (-12.840513, -4.489052), (12.840513, -4.489052), (12.840513, -12.077146)])  # lines 0-3
sketch19.addConstraint(Sketcher.Constraint("Vertical", 0))
sketch19.addConstraint(Sketcher.Constraint("Horizontal", 1))
sketch19.addConstraint(Sketcher.Constraint("Vertical", 2))
sketch19.addConstraint(Sketcher.Constraint("Horizontal", 3))
sketch19.addConstraint(Sketcher.Constraint("DistanceX", 1, 1, 1, 2, Q("25.681026 mm")))
sketch19.addConstraint(Sketcher.Constraint("DistanceY", 0, 1, 0, 2, Q("7.588094 mm")))
sketch19.addConstraint(Sketcher.Constraint("DistanceX", 0, 2, -1, 1, Q("12.840513 mm")))
sketch19.addConstraint(Sketcher.Constraint("DistanceY", 0, 2, -1, 1, Q("4.489052 mm")))
pad14 = doc.addObject("PartDesign::Pad", "Pad013")
body12.addObject(pad14)
pad14.Profile = sketch19
pad14.Length = 2
pad14.Reversed = True
body13 = doc.addObject("PartDesign::Body", "Body012")

# Sketch on XZ plane
sketch20 = doc.addObject("Sketcher::SketchObject", "Sketch019")
body13.addObject(sketch20)
sketch20.AttachmentSupport = (doc.getObject("XZ_Plane012"), [""])
sketch20.MapMode = "FlatFace"
add_polygon(sketch20, [(5.947425, 13.239286), (-5.947425, 13.239286), (-5.947425, 18.229654), (-11.849275, 18.229654), (-11.849275, 11.894849), (-18.161293, 11.894849), (-18.161293, -11.872062), (-11.872062, -11.872062), (-11.872062, -17.933422), (-5.67398, -17.933422), (-4.147246, -16.930791), (4.147246, -16.930791), (5.67398, -17.933422), (11.872062, -17.933422), (11.872062, -11.872062), (18.161293, -11.872062), (18.161293, 11.894849), (11.849275, 11.894849), (11.849275, 18.229654), (5.947425, 18.229654)])  # lines 0-19
sketch20.addConstraint(Sketcher.Constraint("Horizontal", 0))
sketch20.addConstraint(Sketcher.Constraint("Vertical", 1))
sketch20.addConstraint(Sketcher.Constraint("Horizontal", 2))
sketch20.addConstraint(Sketcher.Constraint("Vertical", 3))
sketch20.addConstraint(Sketcher.Constraint("Horizontal", 4))
sketch20.addConstraint(Sketcher.Constraint("Vertical", 5))
sketch20.addConstraint(Sketcher.Constraint("Horizontal", 6))
sketch20.addConstraint(Sketcher.Constraint("Vertical", 7))
sketch20.addConstraint(Sketcher.Constraint("Horizontal", 8))
sketch20.addConstraint(Sketcher.Constraint("Horizontal", 10))
sketch20.addConstraint(Sketcher.Constraint("Horizontal", 12))
sketch20.addConstraint(Sketcher.Constraint("Vertical", 13))
sketch20.addConstraint(Sketcher.Constraint("Horizontal", 14))
sketch20.addConstraint(Sketcher.Constraint("Vertical", 15))
sketch20.addConstraint(Sketcher.Constraint("Horizontal", 16))
sketch20.addConstraint(Sketcher.Constraint("Vertical", 17))
sketch20.addConstraint(Sketcher.Constraint("Horizontal", 18))
sketch20.addConstraint(Sketcher.Constraint("Vertical", 19))
sketch20.addConstraint(Sketcher.Constraint("Symmetric", 8, 2, 11, 2, -2))
sketch20.addConstraint(Sketcher.Constraint("Symmetric", 6, 2, 13, 2, -2))
sketch20.addConstraint(Sketcher.Constraint("Symmetric", 4, 2, 15, 2, -2))
sketch20.addConstraint(Sketcher.Constraint("Symmetric", 2, 2, 17, 2, -2))
sketch20.addConstraint(Sketcher.Constraint("Equal", 2, 18))
sketch20.addConstraint(Sketcher.Constraint("Equal", 9, 11))
sketch20.addConstraint(Sketcher.Constraint("DistanceX", 0, 2, 0, 1, Q("11.894849 mm")))
sketch20.addConstraint(Sketcher.Constraint("DistanceX", 2, 2, 2, 1, Q("5.901851 mm")))
sketch20.addConstraint(Sketcher.Constraint("DistanceX", 6, 1, 6, 2, Q("6.289231 mm")))
sketch20.addConstraint(Sketcher.Constraint("DistanceY", 5, 2, 5, 1, Q("23.766912 mm")))
sketch20.addConstraint(Sketcher.Constraint("DistanceY", 7, 2, 7, 1, Q("6.06136 mm")))
sketch20.addConstraint(Sketcher.Constraint("DistanceX", 4, 2, 4, 1, Q("6.312018 mm")))
sketch20.addConstraint(Sketcher.Constraint("DistanceX", 8, 1, 8, 2, Q("6.198082 mm")))
sketch20.addConstraint(Sketcher.Constraint("DistanceX", 10, 1, 10, 2, Q("8.294493 mm")))
sketch20.addConstraint(Sketcher.Constraint("DistanceY", 1, 1, 1, 2, Q("4.990368 mm")))
sketch20.addConstraint(Sketcher.Constraint("DistanceY", 3, 2, 3, 1, Q("6.334805 mm")))
sketch20.addConstraint(Sketcher.Constraint("DistanceY", -1, 1, 3, 2, Q("11.894849 mm")))
sketch20.addConstraint(Sketcher.Constraint("DistanceY", 9, 2, -1, 1, Q("16.930791 mm")))
pad15 = doc.addObject("PartDesign::Pad", "Pad014")
body13.addObject(pad15)
pad15.Profile = sketch20
pad15.Length = 3

# Sketch on XY plane
sketch21 = doc.addObject("Sketcher::SketchObject", "Sketch020")
body13.addObject(sketch21)
sketch21.AttachmentSupport = (doc.getObject("XY_Plane012"), [""])
sketch21.MapMode = "FlatFace"
add_polygon(sketch21, [(18.161293, -1.793871), (6.12765, -3), (18.161293, -3)])  # lines 0-2
add_polygon(sketch21, [(-18.161293, -1.793871), (-18.161293, -3), (-6.12765, -3)])  # lines 3-5
sketch21.addConstraint(Sketcher.Constraint("Horizontal", 1))
sketch21.addConstraint(Sketcher.Constraint("Vertical", 2))
sketch21.addConstraint(Sketcher.Constraint("Vertical", 3))
sketch21.addConstraint(Sketcher.Constraint("Horizontal", 4))
sketch21.addConstraint(Sketcher.Constraint("Symmetric", 1, 2, 3, 2, -2))
sketch21.addConstraint(Sketcher.Constraint("Horizontal", 2, 2, 5, 2))
sketch21.addConstraint(Sketcher.Constraint("Equal", 1, 4))
sketch21.addConstraint(Sketcher.Constraint("DistanceY", 0, 2, -1, 1, Q("3 mm")))
sketch21.addConstraint(Sketcher.Constraint("DistanceY", 2, 1, 2, 2, Q("1.206129 mm")))
sketch21.addConstraint(Sketcher.Constraint("DistanceX", 4, 2, 0, 2, Q("12.255299 mm")))
sketch21.addConstraint(Sketcher.Constraint("DistanceX", 1, 1, 1, 2, Q("12.033643 mm")))
pocket6 = doc.addObject("PartDesign::Pocket", "Pocket005")
body13.addObject(pocket6)
pocket6.Profile = sketch21
pocket6.Type = "ThroughAll"
pocket6.Midplane = True

doc.recompute()
